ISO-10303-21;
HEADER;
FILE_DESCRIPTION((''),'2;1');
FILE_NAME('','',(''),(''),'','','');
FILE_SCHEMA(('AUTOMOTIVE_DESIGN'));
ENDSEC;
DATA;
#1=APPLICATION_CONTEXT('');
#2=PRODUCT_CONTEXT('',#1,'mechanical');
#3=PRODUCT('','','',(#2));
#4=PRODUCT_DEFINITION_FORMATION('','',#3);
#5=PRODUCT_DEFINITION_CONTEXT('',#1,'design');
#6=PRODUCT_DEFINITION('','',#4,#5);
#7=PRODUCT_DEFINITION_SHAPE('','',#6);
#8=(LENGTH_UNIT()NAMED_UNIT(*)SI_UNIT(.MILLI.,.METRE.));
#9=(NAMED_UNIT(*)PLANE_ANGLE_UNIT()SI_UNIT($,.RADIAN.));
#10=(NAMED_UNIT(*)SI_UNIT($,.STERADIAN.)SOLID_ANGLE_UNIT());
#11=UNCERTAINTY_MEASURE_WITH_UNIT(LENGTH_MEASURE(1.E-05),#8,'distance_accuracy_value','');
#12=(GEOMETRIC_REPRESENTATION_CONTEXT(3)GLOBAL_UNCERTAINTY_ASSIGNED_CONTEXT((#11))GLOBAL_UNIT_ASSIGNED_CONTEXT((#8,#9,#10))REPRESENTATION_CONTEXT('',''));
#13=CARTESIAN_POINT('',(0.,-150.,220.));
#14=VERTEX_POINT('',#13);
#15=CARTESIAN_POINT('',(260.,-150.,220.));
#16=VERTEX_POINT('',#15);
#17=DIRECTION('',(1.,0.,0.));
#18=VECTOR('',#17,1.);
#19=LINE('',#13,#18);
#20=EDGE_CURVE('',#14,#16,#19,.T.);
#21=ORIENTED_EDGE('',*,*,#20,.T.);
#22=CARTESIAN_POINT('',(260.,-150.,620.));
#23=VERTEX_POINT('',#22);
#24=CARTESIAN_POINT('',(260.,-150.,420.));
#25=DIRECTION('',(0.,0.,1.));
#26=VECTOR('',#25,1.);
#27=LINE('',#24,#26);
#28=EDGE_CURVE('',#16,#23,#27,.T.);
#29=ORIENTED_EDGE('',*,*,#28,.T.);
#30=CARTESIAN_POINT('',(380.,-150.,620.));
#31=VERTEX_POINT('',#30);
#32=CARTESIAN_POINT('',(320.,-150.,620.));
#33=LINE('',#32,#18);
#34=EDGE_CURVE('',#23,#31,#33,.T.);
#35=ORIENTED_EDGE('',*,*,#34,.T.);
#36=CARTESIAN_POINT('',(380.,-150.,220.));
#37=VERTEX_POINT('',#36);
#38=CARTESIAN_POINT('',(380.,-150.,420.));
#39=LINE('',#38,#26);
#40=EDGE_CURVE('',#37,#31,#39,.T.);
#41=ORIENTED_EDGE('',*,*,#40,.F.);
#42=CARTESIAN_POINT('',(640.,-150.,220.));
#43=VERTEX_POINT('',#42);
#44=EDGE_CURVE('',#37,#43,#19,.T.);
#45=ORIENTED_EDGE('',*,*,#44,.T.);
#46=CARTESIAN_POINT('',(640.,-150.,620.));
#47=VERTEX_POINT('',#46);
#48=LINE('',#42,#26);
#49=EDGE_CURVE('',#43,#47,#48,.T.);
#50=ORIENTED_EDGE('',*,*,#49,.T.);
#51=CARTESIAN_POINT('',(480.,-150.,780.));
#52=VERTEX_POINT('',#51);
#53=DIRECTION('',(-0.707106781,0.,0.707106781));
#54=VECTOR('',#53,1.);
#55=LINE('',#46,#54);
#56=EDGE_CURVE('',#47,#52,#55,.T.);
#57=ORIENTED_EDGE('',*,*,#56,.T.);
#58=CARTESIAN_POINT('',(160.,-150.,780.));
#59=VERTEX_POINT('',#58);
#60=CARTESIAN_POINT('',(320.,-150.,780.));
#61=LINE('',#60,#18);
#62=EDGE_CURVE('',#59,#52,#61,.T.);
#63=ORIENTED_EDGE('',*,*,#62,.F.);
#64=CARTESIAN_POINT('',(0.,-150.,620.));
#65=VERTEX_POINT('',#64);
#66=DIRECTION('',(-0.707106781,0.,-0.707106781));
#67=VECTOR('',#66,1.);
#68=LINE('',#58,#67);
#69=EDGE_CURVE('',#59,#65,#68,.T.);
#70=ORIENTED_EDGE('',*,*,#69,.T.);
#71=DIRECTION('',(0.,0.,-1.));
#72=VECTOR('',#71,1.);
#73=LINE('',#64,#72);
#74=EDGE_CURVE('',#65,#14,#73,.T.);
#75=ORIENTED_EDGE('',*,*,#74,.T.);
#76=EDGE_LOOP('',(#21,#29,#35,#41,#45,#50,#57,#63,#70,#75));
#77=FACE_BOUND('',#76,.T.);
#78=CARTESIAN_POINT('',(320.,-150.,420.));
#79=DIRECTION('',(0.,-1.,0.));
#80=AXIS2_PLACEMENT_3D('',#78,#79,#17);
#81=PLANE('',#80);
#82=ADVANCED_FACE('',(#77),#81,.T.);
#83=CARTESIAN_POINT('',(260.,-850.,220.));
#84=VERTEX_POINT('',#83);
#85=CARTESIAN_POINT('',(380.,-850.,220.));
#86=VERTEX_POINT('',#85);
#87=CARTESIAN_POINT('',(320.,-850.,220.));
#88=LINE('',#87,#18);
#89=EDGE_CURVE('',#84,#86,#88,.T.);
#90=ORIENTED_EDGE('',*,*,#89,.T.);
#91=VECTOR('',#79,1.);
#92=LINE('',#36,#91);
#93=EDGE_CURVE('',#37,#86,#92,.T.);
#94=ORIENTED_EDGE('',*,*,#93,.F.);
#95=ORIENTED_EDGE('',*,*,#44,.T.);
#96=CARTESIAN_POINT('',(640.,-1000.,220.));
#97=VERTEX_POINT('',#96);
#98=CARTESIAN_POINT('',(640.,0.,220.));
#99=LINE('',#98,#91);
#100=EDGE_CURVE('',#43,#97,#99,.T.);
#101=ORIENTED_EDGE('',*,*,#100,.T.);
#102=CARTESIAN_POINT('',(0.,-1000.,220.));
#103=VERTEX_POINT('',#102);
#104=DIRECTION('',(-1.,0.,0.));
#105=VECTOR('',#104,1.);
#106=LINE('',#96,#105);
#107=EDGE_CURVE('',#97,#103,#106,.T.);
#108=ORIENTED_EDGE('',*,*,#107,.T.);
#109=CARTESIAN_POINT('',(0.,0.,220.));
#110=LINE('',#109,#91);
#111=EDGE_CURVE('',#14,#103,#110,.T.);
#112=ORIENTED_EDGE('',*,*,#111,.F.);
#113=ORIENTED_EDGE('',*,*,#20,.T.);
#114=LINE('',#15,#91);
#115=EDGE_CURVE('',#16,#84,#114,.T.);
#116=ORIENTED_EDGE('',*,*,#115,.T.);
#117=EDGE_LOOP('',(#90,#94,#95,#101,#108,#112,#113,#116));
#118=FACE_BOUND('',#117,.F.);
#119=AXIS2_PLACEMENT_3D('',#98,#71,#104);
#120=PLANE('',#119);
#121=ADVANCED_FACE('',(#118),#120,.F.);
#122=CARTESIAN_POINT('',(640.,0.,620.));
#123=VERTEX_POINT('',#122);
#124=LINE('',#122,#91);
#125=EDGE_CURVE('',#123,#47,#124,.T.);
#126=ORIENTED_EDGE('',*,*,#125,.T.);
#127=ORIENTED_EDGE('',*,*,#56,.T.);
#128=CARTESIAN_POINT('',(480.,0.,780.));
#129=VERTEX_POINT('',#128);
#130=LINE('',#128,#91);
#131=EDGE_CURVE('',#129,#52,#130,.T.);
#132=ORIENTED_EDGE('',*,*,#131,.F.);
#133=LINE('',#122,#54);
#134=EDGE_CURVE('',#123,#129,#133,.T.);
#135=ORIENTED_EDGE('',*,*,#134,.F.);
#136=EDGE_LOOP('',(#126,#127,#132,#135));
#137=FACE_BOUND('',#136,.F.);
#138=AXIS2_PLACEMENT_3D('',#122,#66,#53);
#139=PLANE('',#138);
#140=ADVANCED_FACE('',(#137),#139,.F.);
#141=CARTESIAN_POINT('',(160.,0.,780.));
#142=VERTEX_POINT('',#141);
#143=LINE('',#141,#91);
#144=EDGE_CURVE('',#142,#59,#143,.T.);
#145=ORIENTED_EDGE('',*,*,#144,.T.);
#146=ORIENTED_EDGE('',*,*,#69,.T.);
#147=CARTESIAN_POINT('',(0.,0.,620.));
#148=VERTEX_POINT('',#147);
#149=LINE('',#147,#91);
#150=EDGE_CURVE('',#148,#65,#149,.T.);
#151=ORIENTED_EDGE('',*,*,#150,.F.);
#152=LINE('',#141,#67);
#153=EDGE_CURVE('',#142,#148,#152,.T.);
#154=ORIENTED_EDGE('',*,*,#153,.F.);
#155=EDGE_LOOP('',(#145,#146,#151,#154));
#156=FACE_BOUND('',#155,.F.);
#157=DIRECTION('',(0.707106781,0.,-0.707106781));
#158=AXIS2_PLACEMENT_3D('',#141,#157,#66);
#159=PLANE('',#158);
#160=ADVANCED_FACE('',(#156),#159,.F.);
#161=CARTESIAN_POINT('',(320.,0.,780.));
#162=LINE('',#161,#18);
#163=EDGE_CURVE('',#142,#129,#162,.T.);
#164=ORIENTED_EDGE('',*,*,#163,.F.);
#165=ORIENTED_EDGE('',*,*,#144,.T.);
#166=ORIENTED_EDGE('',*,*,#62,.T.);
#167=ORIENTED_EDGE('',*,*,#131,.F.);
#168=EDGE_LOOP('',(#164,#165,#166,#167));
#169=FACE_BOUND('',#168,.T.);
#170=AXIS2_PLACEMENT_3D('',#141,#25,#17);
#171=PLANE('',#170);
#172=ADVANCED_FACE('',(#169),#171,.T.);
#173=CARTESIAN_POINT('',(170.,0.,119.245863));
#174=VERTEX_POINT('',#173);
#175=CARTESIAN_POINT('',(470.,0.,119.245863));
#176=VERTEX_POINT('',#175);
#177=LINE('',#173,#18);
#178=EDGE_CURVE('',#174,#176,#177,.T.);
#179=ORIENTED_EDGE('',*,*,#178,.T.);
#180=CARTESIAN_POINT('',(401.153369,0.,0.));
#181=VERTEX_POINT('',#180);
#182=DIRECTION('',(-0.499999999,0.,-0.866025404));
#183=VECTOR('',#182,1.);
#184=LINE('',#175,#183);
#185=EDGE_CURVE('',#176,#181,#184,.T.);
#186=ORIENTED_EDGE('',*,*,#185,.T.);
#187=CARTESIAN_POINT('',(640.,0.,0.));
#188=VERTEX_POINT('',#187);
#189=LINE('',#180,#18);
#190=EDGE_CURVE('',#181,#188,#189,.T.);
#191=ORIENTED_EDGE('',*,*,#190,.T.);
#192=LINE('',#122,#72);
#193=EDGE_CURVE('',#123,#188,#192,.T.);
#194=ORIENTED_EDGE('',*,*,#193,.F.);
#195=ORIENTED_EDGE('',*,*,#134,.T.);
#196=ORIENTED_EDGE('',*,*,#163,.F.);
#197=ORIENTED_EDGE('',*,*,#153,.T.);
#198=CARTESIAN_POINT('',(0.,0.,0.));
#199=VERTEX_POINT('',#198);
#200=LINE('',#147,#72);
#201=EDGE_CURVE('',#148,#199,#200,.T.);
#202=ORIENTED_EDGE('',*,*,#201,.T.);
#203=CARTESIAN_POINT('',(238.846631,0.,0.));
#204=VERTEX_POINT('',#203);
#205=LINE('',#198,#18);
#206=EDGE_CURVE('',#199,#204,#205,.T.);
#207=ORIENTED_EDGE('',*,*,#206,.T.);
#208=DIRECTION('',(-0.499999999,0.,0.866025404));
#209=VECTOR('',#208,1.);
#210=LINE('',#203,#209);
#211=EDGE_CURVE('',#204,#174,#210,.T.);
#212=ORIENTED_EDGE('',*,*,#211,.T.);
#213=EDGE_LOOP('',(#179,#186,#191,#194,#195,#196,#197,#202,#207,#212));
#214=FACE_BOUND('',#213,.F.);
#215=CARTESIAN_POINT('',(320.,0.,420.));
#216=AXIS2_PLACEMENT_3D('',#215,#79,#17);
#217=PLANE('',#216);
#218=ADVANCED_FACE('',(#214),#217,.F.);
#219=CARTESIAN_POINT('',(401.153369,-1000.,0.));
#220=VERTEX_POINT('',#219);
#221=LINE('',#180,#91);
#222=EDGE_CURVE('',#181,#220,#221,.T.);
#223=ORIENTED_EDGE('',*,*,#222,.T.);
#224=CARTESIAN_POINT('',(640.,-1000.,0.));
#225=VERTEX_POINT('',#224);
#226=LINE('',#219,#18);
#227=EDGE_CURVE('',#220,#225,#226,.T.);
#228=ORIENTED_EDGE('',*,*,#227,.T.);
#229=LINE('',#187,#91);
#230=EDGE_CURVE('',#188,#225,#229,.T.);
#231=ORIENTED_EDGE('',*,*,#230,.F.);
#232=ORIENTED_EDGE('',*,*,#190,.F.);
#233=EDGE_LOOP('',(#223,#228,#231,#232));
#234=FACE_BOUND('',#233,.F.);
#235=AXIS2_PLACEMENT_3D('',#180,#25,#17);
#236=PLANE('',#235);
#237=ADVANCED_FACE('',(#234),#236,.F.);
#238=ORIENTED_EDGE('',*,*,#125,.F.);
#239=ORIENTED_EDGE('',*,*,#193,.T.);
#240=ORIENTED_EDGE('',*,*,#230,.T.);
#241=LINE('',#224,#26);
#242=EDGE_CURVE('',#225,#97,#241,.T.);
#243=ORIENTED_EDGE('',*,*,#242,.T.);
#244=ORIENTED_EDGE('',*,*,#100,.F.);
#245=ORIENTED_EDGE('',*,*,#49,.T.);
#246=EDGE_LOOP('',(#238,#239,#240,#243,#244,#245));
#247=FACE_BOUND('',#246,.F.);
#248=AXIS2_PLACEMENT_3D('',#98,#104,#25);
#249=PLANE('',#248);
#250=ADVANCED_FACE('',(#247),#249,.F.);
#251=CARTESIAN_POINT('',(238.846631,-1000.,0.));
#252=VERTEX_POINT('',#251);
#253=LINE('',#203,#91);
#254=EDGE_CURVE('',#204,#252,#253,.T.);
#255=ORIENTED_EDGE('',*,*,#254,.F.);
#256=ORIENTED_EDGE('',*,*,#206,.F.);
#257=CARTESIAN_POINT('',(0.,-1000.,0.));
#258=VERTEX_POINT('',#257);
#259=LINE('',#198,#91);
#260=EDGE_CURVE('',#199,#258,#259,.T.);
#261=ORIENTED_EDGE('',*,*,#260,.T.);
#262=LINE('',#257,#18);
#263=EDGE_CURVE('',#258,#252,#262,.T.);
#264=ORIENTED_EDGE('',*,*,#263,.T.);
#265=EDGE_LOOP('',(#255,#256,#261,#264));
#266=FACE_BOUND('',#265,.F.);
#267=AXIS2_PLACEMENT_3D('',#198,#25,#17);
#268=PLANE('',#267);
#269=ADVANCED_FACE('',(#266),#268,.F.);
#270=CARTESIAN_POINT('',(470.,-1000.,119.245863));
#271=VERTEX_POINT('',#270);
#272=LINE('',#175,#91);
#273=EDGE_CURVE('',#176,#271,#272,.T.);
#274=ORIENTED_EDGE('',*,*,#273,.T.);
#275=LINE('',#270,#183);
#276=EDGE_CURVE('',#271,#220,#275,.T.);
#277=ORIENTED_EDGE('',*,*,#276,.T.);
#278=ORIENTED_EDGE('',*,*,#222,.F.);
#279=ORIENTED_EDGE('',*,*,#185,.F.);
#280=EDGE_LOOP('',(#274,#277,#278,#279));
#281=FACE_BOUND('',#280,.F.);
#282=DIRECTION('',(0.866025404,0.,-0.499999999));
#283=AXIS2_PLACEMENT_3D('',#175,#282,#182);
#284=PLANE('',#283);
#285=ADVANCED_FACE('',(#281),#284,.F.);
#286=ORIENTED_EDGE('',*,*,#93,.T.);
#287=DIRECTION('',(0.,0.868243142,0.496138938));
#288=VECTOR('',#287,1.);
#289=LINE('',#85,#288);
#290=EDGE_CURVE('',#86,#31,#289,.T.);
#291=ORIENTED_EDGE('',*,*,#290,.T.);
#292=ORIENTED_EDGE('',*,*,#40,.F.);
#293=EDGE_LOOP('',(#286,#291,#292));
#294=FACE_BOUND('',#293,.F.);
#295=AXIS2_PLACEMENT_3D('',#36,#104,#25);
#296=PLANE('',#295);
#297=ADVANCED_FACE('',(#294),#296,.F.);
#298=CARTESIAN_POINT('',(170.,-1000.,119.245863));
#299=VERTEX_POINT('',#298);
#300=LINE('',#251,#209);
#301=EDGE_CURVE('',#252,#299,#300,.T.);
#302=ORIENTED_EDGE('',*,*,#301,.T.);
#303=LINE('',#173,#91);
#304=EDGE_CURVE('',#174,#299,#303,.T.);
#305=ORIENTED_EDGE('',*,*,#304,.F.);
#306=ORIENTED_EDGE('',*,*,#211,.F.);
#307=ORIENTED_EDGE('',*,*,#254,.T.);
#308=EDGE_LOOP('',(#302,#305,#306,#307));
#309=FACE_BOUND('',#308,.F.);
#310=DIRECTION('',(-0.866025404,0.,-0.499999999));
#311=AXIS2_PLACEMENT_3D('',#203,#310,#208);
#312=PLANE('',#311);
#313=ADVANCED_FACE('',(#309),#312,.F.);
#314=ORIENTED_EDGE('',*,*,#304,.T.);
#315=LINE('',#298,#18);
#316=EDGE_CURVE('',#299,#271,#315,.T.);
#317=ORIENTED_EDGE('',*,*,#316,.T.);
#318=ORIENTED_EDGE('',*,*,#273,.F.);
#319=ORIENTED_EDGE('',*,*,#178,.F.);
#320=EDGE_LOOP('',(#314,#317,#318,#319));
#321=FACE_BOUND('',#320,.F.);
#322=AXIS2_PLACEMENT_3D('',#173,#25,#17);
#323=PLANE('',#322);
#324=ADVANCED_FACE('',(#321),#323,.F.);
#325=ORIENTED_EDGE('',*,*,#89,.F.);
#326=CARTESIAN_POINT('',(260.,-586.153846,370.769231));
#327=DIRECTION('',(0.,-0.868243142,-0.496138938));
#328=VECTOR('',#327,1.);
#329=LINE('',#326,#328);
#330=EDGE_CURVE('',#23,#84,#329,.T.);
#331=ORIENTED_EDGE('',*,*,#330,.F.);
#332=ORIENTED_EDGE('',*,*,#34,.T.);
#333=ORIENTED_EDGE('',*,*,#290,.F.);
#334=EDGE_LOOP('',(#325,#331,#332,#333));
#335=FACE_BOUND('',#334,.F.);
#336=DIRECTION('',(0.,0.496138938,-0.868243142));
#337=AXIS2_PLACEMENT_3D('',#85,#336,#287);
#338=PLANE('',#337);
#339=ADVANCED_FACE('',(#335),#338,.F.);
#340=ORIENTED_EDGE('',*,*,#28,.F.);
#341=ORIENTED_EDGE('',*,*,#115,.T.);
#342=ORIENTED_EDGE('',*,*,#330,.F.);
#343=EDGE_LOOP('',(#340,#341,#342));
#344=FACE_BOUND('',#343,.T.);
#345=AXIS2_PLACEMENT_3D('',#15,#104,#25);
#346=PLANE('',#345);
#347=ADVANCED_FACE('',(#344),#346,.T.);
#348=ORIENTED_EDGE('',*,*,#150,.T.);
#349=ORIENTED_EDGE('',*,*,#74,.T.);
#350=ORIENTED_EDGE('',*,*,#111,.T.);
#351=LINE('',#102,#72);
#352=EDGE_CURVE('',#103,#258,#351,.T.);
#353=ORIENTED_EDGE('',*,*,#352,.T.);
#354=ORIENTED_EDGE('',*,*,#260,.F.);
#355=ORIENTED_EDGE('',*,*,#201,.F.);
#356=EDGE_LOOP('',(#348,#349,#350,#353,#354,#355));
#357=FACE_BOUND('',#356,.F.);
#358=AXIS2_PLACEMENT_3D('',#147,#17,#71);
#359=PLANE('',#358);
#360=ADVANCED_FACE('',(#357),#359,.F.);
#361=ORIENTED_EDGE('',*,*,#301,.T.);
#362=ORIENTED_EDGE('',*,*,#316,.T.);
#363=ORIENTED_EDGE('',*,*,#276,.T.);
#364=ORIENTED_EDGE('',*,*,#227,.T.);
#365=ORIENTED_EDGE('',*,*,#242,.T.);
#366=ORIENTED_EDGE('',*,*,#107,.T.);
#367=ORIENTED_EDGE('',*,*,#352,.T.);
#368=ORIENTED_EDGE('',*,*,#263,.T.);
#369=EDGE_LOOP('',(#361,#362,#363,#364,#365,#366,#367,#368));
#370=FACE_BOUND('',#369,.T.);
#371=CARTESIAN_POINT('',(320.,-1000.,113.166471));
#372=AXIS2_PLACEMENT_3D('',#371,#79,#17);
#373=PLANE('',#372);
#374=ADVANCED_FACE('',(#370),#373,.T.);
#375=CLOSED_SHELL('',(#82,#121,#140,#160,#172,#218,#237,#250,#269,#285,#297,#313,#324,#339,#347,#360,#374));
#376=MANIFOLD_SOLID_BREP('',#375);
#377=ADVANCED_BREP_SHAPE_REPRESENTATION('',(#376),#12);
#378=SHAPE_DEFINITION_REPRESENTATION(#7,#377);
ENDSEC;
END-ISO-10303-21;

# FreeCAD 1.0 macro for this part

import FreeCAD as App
import Part
import Sketcher

V = App.Vector
Q = App.Units.Quantity

doc = App.newDocument("Part")
body = doc.addObject("PartDesign::Body", "Body")

# Sketch on XZ plane
sketch1 = body.newObject("Sketcher::SketchObject", "Sketch")
sketch1.AttachmentSupport = (doc.getObject("XZ_Plane"), [""])
sketch1.MapMode = "FlatFace"
sketch1.addGeometry(Part.LineSegment(V(0, 220, 0), V(0, 0, 0)), False)
sketch1.addGeometry(Part.LineSegment(V(0, 0, 0), V(239, 0, 0)), False)
sketch1.addGeometry(Part.LineSegment(V(239, 0, 0), V(170, 119, 0)), False)
sketch1.addGeometry(Part.LineSegment(V(170, 119, 0), V(470, 119, 0)), False)
sketch1.addGeometry(Part.LineSegment(V(470, 119, 0), V(401, 0, 0)), False)
sketch1.addGeometry(Part.LineSegment(V(401, 0, 0), V(640, 0, 0)), False)
sketch1.addGeometry(Part.LineSegment(V(640, 0, 0), V(640, 220, 0)), False)
sketch1.addGeometry(Part.LineSegment(V(640, 220, 0), V(0, 220, 0)), False)
sketch1.addConstraint(Sketcher.Constraint("Coincident", 0, 2, 1, 1))
sketch1.addConstraint(Sketcher.Constraint("Coincident", 1, 2, 2, 1))
sketch1.addConstraint(Sketcher.Constraint("Coincident", 2, 2, 3, 1))
sketch1.addConstraint(Sketcher.Constraint("Coincident", 3, 2, 4, 1))
sketch1.addConstraint(Sketcher.Constraint("Coincident", 4, 2, 5, 1))
sketch1.addConstraint(Sketcher.Constraint("Coincident", 5, 2, 6, 1))
sketch1.addConstraint(Sketcher.Constraint("Coincident", 6, 2, 7, 1))
sketch1.addConstraint(Sketcher.Constraint("Coincident", 7, 2, 0, 1))
sketch1.addConstraint(Sketcher.Constraint("Vertical", 0))
sketch1.addConstraint(Sketcher.Constraint("Horizontal", 1))
sketch1.addConstraint(Sketcher.Constraint("Horizontal", 3))
sketch1.addConstraint(Sketcher.Constraint("Horizontal", 5))
sketch1.addConstraint(Sketcher.Constraint("Vertical", 6))
sketch1.addConstraint(Sketcher.Constraint("Horizontal", 7))
sketch1.addConstraint(Sketcher.Constraint("Coincident", 0, 2, -1, 1))
sketch1.addConstraint(Sketcher.Constraint("PointOnObject", 4, 2, -1))
sketch1.addConstraint(Sketcher.Constraint("Equal", 1, 5))
sketch1.addConstraint(Sketcher.Constraint("Equal", 2, 4))
sketch1.addConstraint(Sketcher.Constraint("DistanceX", 3, 1, 3, 2, 300.0))
sketch1.addConstraint(Sketcher.Constraint("DistanceX", 7, 2, 7, 1, 640.0))
sketch1.addConstraint(Sketcher.Constraint("DistanceY", 0, 2, 0, 1, 220.0))
sketch1.addConstraint(Sketcher.Constraint("Angle", 2, Q("120 deg")))
sketch1.addConstraint(Sketcher.Constraint("DistanceX", 1, 1, 1, 2, 238.846631))
pad1 = body.newObject("PartDesign::Pad", "Pad")
pad1.Profile = sketch1
pad1.Length = 1000

# Sketch on XZ plane
sketch2 = body.newObject("Sketcher::SketchObject", "Sketch001")
sketch2.AttachmentSupport = (doc.getObject("XZ_Plane"), [""])
sketch2.MapMode = "FlatFace"
sketch2.addGeometry(Part.LineSegment(V(0, 620, 0), V(0, 220, 0)), False)
sketch2.addGeometry(Part.LineSegment(V(0, 220, 0), V(640, 220, 0)), False)
sketch2.addGeometry(Part.LineSegment(V(640, 220, 0), V(640, 620, 0)), False)
sketch2.addGeometry(Part.LineSegment(V(640, 620, 0), V(480, 780, 0)), False)
sketch2.addGeometry(Part.LineSegment(V(480, 780, 0), V(160, 780, 0)), False)
sketch2.addGeometry(Part.LineSegment(V(160, 780, 0), V(0, 620, 0)), False)
sketch2.addConstraint(Sketcher.Constraint("Coincident", 0, 2, 1, 1))
sketch2.addConstraint(Sketcher.Constraint("Coincident", 1, 2, 2, 1))
sketch2.addConstraint(Sketcher.Constraint("Coincident", 2, 2, 3, 1))
sketch2.addConstraint(Sketcher.Constraint("Coincident", 3, 2, 4, 1))
sketch2.addConstraint(Sketcher.Constraint("Coincident", 4, 2, 5, 1))
sketch2.addConstraint(Sketcher.Constraint("Coincident", 5, 2, 0, 1))
sketch2.addConstraint(Sketcher.Constraint("Vertical", 0))
sketch2.addConstraint(Sketcher.Constraint("Horizontal", 1))
sketch2.addConstraint(Sketcher.Constraint("Vertical", 2))
sketch2.addConstraint(Sketcher.Constraint("Horizontal", 4))
sketch2.addConstraint(Sketcher.Constraint("PointOnObject", 0, 2, -2))
sketch2.addConstraint(Sketcher.Constraint("Perpendicular", 3, 5))
sketch2.addConstraint(Sketcher.Constraint("Horizontal", 2, 2, 5, 2))
sketch2.addConstraint(Sketcher.Constraint("Equal", 3, 5))
sketch2.addConstraint(Sketcher.Constraint("DistanceX", 1, 1, 1, 2, 640.0))
sketch2.addConstraint(Sketcher.Constraint("DistanceX", 4, 2, 4, 1, 320.0))
sketch2.addConstraint(Sketcher.Constraint("DistanceY", 0, 2, 0, 1, 400.0))
sketch2.addConstraint(Sketcher.Constraint("DistanceY", -1, 1, 0, 2, 220.0))
pad2 = body.newObject("PartDesign::Pad", "Pad001")
pad2.Profile = sketch2
pad2.Length = 150

# Sketch on XZ plane
sketch3 = body.newObject("Sketcher::SketchObject", "Sketch002")
sketch3.AttachmentSupport = (doc.getObject("XZ_Plane"), [""])
sketch3.MapMode = "FlatFace"
sketch3.AttachmentOffset = App.Placement(V(0, 0, 150), App.Rotation())
sketch3.addGeometry(Part.LineSegment(V(260, 620, 0), V(260, 220, 0)), False)
sketch3.addGeometry(Part.LineSegment(V(260, 220, 0), V(380, 220, 0)), False)
sketch3.addGeometry(Part.LineSegment(V(380, 220, 0), V(380, 620, 0)), False)
sketch3.addGeometry(Part.LineSegment(V(380, 620, 0), V(260, 620, 0)), False)
sketch3.addConstraint(Sketcher.Constraint("Coincident", 0, 2, 1, 1))
sketch3.addConstraint(Sketcher.Constraint("Coincident", 1, 2, 2, 1))
sketch3.addConstraint(Sketcher.Constraint("Coincident", 2, 2, 3, 1))
sketch3.addConstraint(Sketcher.Constraint("Coincident", 3, 2, 0, 1))
sketch3.addConstraint(Sketcher.Constraint("Vertical", 0))
sketch3.addConstraint(Sketcher.Constraint("Horizontal", 1))
sketch3.addConstraint(Sketcher.Constraint("Vertical", 2))
sketch3.addConstraint(Sketcher.Constraint("Horizontal", 3))
sketch3.addConstraint(Sketcher.Constraint("DistanceX", 1, 1, 1, 2, 120.0))
sketch3.addConstraint(Sketcher.Constraint("DistanceY", 0, 2, 0, 1, 400.0))
sketch3.addConstraint(Sketcher.Constraint("DistanceX", -1, 1, 0, 2, 260.0))
sketch3.addConstraint(Sketcher.Constraint("DistanceY", -1, 1, 0, 2, 220.0))
pad3 = body.newObject("PartDesign::Pad", "Pad002")
pad3.Profile = sketch3
pad3.Length = 700

# Sketch on YZ plane
sketch4 = body.newObject("Sketcher::SketchObject", "Sketch003")
sketch4.AttachmentSupport = (doc.getObject("YZ_Plane"), [""])
sketch4.MapMode = "FlatFace"
sketch4.AttachmentOffset = App.Placement(V(0, 0, 380), App.Rotation())
sketch4.addGeometry(Part.LineSegment(V(-850, 620, 0), V(-850, 220, 0)), False)
sketch4.addGeometry(Part.LineSegment(V(-850, 220, 0), V(-150, 620, 0)), False)
sketch4.addGeometry(Part.LineSegment(V(-150, 620, 0), V(-850, 620, 0)), False)
sketch4.addConstraint(Sketcher.Constraint("Coincident", 0, 2, 1, 1))
sketch4.addConstraint(Sketcher.Constraint("Coincident", 1, 2, 2, 1))
sketch4.addConstraint(Sketcher.Constraint("Coincident", 2, 2, 0, 1))
sketch4.addConstraint(Sketcher.Constraint("Vertical", 0))
sketch4.addConstraint(Sketcher.Constraint("Horizontal", 2))
sketch4.addConstraint(Sketcher.Constraint("DistanceX", 2, 2, 2, 1, 700.0))
sketch4.addConstraint(Sketcher.Constraint("DistanceY", 0, 2, 0, 1, 400.0))
sketch4.addConstraint(Sketcher.Constraint("DistanceX", 0, 2, -1, 1, 850.0))
sketch4.addConstraint(Sketcher.Constraint("DistanceY", -1, 1, 0, 2, 220.0))
pocket1 = body.newObject("PartDesign::Pocket", "Pocket")
pocket1.Profile = sketch4
pocket1.Length = 267.208

doc.recompute()
